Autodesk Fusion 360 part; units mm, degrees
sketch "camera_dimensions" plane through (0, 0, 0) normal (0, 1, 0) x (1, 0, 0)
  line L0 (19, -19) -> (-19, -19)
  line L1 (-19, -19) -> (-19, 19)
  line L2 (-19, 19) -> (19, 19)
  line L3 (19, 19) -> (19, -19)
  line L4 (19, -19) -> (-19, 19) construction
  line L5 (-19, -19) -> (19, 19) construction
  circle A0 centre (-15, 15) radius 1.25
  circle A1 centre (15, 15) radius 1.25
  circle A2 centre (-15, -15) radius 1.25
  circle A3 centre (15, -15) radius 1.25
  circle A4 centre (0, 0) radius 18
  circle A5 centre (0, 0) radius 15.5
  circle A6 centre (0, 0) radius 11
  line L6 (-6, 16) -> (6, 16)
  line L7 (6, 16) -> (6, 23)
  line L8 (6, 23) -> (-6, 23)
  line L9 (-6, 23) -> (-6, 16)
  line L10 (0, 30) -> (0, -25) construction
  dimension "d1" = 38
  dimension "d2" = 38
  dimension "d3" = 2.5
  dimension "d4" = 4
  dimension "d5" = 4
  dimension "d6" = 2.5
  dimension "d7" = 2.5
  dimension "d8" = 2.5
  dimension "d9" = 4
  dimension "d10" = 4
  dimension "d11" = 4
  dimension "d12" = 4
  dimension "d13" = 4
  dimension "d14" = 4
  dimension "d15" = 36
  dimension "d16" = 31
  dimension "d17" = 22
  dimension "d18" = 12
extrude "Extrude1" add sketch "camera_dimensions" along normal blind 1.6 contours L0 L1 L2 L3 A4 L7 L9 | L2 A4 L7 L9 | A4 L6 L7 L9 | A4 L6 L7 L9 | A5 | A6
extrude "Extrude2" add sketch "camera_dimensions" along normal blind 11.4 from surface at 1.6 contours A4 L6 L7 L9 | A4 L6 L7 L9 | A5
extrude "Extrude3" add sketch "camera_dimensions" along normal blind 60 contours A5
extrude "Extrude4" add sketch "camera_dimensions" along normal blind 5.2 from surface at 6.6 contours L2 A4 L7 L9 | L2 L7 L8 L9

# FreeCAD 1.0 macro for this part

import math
import FreeCAD as App
import Part
import Sketcher
Q = App.Units.Quantity


def add_polygon(sketch, points):
    """Adds a closed chain of lines whose ends are joined by coincident constraints."""
    first, n = sketch.GeometryCount, len(points)
    for a, b in zip(points, points[1:] + points[:1]):
        sketch.addGeometry(Part.LineSegment(App.Vector(*a, 0), App.Vector(*b, 0)), False)
    for i in range(n):
        sketch.addConstraint(Sketcher.Constraint("Coincident", first + i, 2, first + (i + 1) % n, 1))

doc = App.newDocument("Part")
params = doc.addObject("Spreadsheet::Sheet", "Params")
for row, (alias, value) in enumerate([
    ("sketch1_diameter", "2.5 mm"),
    ("sketch1_width", "38 mm"),
    ("pad1_length", "1.6 mm"),
    ("sketch2_diameter", "36 mm"),
    ("sketch2_diameter2", "22 mm"),
    ("pad2_length", "11.4 mm"),
    ("sketch3_diameter", "31 mm"),
    ("sketch3_diameter2", "22 mm"),
    ("pad3_length", "60 mm"),
    ("sketch4_radius", "18 mm"),
    ("sketch4_width", "12 mm"),
    ("pad4_length", "5.2 mm"),
], start=1):
    params.set(f"A{row}", alias)
    params.set(f"B{row}", "=" + value)
    params.setAlias(f"B{row}", alias)

body = doc.addObject("PartDesign::Body", "Body")

# Sketch on XZ plane
sketch1 = body.newObject("Sketcher::SketchObject", "Sketch")
sketch1.AttachmentSupport = (doc.getObject("XZ_Plane"), [""])
sketch1.MapMode = "FlatFace"
add_polygon(sketch1, [(-19, 19), (19, 19), (19, -19), (-19, -19)])  # lines 0-3
sketch1.addGeometry(Part.Circle(App.Vector(-15, 15, 0), App.Vector(0, 0, 1), 1.2), False)  # 4
sketch1.addGeometry(Part.Circle(App.Vector(15, 15, 0), App.Vector(0, 0, 1), 1.2), False)  # 5
sketch1.addGeometry(Part.Circle(App.Vector(-15, -15, 0), App.Vector(0, 0, 1), 1.2), False)  # 6
sketch1.addGeometry(Part.Circle(App.Vector(15, -15, 0), App.Vector(0, 0, 1), 1.2), False)  # 7
sketch1.addConstraint(Sketcher.Constraint("Horizontal", 0))
sketch1.addConstraint(Sketcher.Constraint("Vertical", 1))
sketch1.addConstraint(Sketcher.Constraint("Horizontal", 2))
sketch1.addConstraint(Sketcher.Constraint("Vertical", 3))
sketch1.addConstraint(Sketcher.Constraint("Equal", 4, 5))
sketch1.addConstraint(Sketcher.Constraint("Equal", 5, 6))
sketch1.addConstraint(Sketcher.Constraint("Equal", 6, 7))
sketch1.addConstraint(Sketcher.Constraint("Symmetric", 5, 3, 6, 3, -1, 1))
sketch1.addConstraint(Sketcher.Constraint("Symmetric", 4, 3, 7, 3, -1, 1))
sketch1.addConstraint(Sketcher.Constraint("Symmetric", 0, 2, 2, 2, -1, 1))
sketch1.addConstraint(Sketcher.Constraint("Symmetric", 4, 3, 5, 3, -2))
sketch1.addConstraint(Sketcher.Constraint("Equal", 2, 1))
sketch1.addConstraint(Sketcher.Constraint("Diameter", 4, Q("2.5 mm")))
sketch1.addConstraint(Sketcher.Constraint("DistanceX", 0, 1, 0, 2, Q("38 mm")))
sketch1.addConstraint(Sketcher.Constraint("DistanceX", 5, 3, 0, 2, Q("4 mm")))
sketch1.addConstraint(Sketcher.Constraint("DistanceY", 5, 3, 0, 2, Q("4 mm")))
sketch1.setExpression("Constraints[16]", "Params.sketch1_diameter")
sketch1.setExpression("Constraints[17]", "Params.sketch1_width")
pad1 = body.newObject("PartDesign::Pad", "Pad")
pad1.Profile = sketch1
pad1.setExpression("Length", "Params.pad1_length")
pad1.Reversed = True

# Sketch on XZ plane
sketch2 = body.newObject("Sketcher::SketchObject", "Sketch001")
sketch2.AttachmentSupport = (doc.getObject("XZ_Plane"), [""])
sketch2.MapMode = "FlatFace"
sketch2.AttachmentOffset = App.Placement(App.Vector(0, 0, -1.6), App.Rotation())
sketch2.addGeometry(Part.Circle(App.Vector(0, 0, 0), App.Vector(0, 0, 1), 18), False)
sketch2.addGeometry(Part.Circle(App.Vector(0, 0, 0), App.Vector(0, 0, 1), 11), False)
sketch2.addConstraint(Sketcher.Constraint("Coincident", 0, 3, -1, 1))
sketch2.addConstraint(Sketcher.Constraint("Coincident", 1, 3, -1, 1))
sketch2.addConstraint(Sketcher.Constraint("Diameter", 0, Q("36 mm")))
sketch2.addConstraint(Sketcher.Constraint("Diameter", 1, Q("22 mm")))
sketch2.setExpression("Constraints[2]", "Params.sketch2_diameter")
sketch2.setExpression("Constraints[3]", "Params.sketch2_diameter2")
pad2 = body.newObject("PartDesign::Pad", "Pad001")
pad2.Profile = sketch2
pad2.setExpression("Length", "Params.pad2_length")
pad2.Reversed = True

# Sketch on XZ plane
sketch3 = body.newObject("Sketcher::SketchObject", "Sketch002")
sketch3.AttachmentSupport = (doc.getObject("XZ_Plane"), [""])
sketch3.MapMode = "FlatFace"
sketch3.addGeometry(Part.Circle(App.Vector(0, 0, 0), App.Vector(0, 0, 1), 16), False)
sketch3.addGeometry(Part.Circle(App.Vector(0, 0, 0), App.Vector(0, 0, 1), 11), False)
sketch3.addConstraint(Sketcher.Constraint("Coincident", 0, 3, -1, 1))
sketch3.addConstraint(Sketcher.Constraint("Coincident", 1, 3, -1, 1))
sketch3.addConstraint(Sketcher.Constraint("Diameter", 0, Q("31 mm")))
sketch3.addConstraint(Sketcher.Constraint("Diameter", 1, Q("22 mm")))
sketch3.setExpression("Constraints[2]", "Params.sketch3_diameter")
sketch3.setExpression("Constraints[3]", "Params.sketch3_diameter2")
pad3 = body.newObject("PartDesign::Pad", "Pad002")
pad3.Profile = sketch3
pad3.setExpression("Length", "Params.pad3_length")
pad3.Reversed = True

# Sketch on XZ plane
sketch4 = body.newObject("Sketcher::SketchObject", "Sketch003")
sketch4.AttachmentSupport = (doc.getObject("XZ_Plane"), [""])
sketch4.MapMode = "FlatFace"
sketch4.AttachmentOffset = App.Placement(App.Vector(0, 0, -6.6), App.Rotation())
sketch4.addGeometry(Part.LineSegment(App.Vector(6, -17, 0), App.Vector(6, -23, 0)), False)
sketch4.addGeometry(Part.LineSegment(App.Vector(6, -23, 0), App.Vector(-6, -23, 0)), False)
sketch4.addGeometry(Part.LineSegment(App.Vector(-6, -23, 0), App.Vector(-6, -17, 0)), False)
sketch4.addGeometry(Part.ArcOfCircle(Part.Circle(App.Vector(0, 0, 0), App.Vector(0, 0, 1), 18), math.radians(-109), math.radians(-71)), False)
sketch4.addConstraint(Sketcher.Constraint("Coincident", 0, 2, 1, 1))
sketch4.addConstraint(Sketcher.Constraint("Coincident", 1, 2, 2, 1))
sketch4.addConstraint(Sketcher.Constraint("Coincident", 2, 2, 3, 1))
sketch4.addConstraint(Sketcher.Constraint("Coincident", 3, 2, 0, 1))
sketch4.addConstraint(Sketcher.Constraint("Vertical", 0))
sketch4.addConstraint(Sketcher.Constraint("Horizontal", 1))
sketch4.addConstraint(Sketcher.Constraint("Vertical", 2))
sketch4.addConstraint(Sketcher.Constraint("Coincident", 3, 3, -1, 1))
sketch4.addConstraint(Sketcher.Constraint("Horizontal", 2, 2, 3, 2))
sketch4.addConstraint(Sketcher.Constraint("Radius", 3, Q("18 mm")))
sketch4.addConstraint(Sketcher.Constraint("DistanceX", 1, 2, 1, 1, Q("12 mm")))
sketch4.addConstraint(Sketcher.Constraint("DistanceY", 0, 2, -1, 1, Q("23 mm")))
sketch4.setExpression("Constraints[9]", "Params.sketch4_radius")
sketch4.setExpression("Constraints[10]", "Params.sketch4_width")
pad4 = body.newObject("PartDesign::Pad", "Pad003")
pad4.Profile = sketch4
pad4.setExpression("Length", "Params.pad4_length")
pad4.Reversed = True

doc.recompute()
